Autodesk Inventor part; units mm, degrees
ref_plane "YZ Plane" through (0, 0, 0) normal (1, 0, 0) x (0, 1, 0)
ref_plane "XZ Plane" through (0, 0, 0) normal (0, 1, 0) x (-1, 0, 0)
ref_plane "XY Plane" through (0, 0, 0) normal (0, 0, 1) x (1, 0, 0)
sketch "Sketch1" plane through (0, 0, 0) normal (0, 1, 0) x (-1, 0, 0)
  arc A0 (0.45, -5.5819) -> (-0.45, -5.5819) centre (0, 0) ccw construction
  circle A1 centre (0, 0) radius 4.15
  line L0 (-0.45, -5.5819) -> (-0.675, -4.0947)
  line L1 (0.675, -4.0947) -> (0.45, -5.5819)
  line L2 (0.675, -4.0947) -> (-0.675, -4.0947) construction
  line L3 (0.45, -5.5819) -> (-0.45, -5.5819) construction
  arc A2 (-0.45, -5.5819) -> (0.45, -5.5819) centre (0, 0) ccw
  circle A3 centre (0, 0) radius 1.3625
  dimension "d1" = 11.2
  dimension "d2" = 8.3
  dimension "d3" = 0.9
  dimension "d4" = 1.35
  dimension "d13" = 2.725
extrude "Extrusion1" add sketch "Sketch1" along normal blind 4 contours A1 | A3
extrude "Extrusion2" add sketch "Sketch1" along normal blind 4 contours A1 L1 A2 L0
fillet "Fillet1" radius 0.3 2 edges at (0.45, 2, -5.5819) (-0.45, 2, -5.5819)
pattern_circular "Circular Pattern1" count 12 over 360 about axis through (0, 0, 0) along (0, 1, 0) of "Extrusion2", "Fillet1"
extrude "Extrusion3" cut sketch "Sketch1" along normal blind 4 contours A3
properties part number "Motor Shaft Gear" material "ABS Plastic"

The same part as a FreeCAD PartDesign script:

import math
import FreeCAD as App
import Part
import Sketcher

V = App.Vector


def edges_at(feature, points):
    """Names of the edges that pass closest to the given points."""
    edges = feature.Shape.Edges
    near = lambda p: min(range(len(edges)), key=lambda i: edges[i].distToShape(Part.Vertex(*p))[0])
    return sorted({f"Edge{near(p) + 1}" for p in points})

doc = App.newDocument("Part")
body = doc.addObject("PartDesign::Body", "Body")

sketch1 = body.newObject("Sketcher::SketchObject", "Sketch")
sketch1.AttachmentSupport = (doc.getObject("XZ_Plane"), [""])
sketch1.MapMode = "FlatFace"
sketch1.addGeometry(Part.Circle(V(0, 0, 0), V(0, 0, 1), 4.15), False)
sketch1.addConstraint([
    Sketcher.Constraint("Coincident", 0, 3, -1, 1),
    Sketcher.Constraint("Diameter", 0, 8.3),
])
pad1 = body.newObject("PartDesign::Pad", "Pad")
pad1.Profile = sketch1
pad1.Length = 4
pad1.Reversed = True

sketch2 = body.newObject("Sketcher::SketchObject", "Sketch001")
sketch2.AttachmentSupport = (doc.getObject("XZ_Plane"), [""])
sketch2.MapMode = "FlatFace"
sketch2.addGeometry([
    Part.ArcOfCircle(Part.Circle(V(0, 0, 0), V(0, 0, 1), 4.15), math.radians(-99.360864), math.radians(-80.639136)),
    Part.LineSegment(V(0.675, -4.0947, 0), V(0.45, -5.5819, 0)),
    Part.ArcOfCircle(Part.Circle(V(0, 0, 0), V(0, 0, 1), 5.60001), math.radians(-94.609087), math.radians(-85.390913)),
    Part.LineSegment(V(-0.45, -5.5819, 0), V(-0.675, -4.0947, 0)),
], False)
sketch2.addConstraint([
    Sketcher.Constraint("Coincident", 0, 2, 1, 1),
    Sketcher.Constraint("Coincident", 1, 2, 2, 2),
    Sketcher.Constraint("Coincident", 2, 1, 3, 1),
    Sketcher.Constraint("Coincident", 3, 2, 0, 1),
    Sketcher.Constraint("Coincident", 0, 3, -1, 1),
    Sketcher.Constraint("Coincident", 2, 3, -1, 1),
    Sketcher.Constraint("Horizontal", 1, 2, 2, 1),
    Sketcher.Constraint("Horizontal", 0, 2, 3, 2),
    Sketcher.Constraint("Radius", 2, 5.6),
    Sketcher.Constraint("Radius", 0, 4.15),
    Sketcher.Constraint("DistanceX", 2, 1, 1, 2, 0.9),
    Sketcher.Constraint("DistanceX", 3, 2, 0, 2, 1.35),
])
pad2 = body.newObject("PartDesign::Pad", "Pad001")
pad2.Profile = sketch2
pad2.Length = 4
pad2.Reversed = True
doc.recompute()

fillet = body.newObject("PartDesign::Fillet", "Fillet")
fillet.Base = (pad2, edges_at(pad2, [(0.45, 2, -5.582), (-0.45, 2, -5.582)]))
fillet.Radius = 0.3
doc.recompute()

polarpattern = body.newObject("PartDesign::PolarPattern", "PolarPattern")
polarpattern.Originals = [pad2, fillet]
polarpattern.Axis = (doc.getObject("Y_Axis"), [""])
polarpattern.Angle = 360
polarpattern.Occurrences = 12
body.Tip = polarpattern

sketch3 = body.newObject("Sketcher::SketchObject", "Sketch002")
sketch3.AttachmentSupport = (doc.getObject("XZ_Plane"), [""])
sketch3.MapMode = "FlatFace"
sketch3.addGeometry(Part.Circle(V(0, 0, 0), V(0, 0, 1), 1.3625), False)
sketch3.addConstraint([
    Sketcher.Constraint("Coincident", 0, 3, -1, 1),
    Sketcher.Constraint("Diameter", 0, 2.725),
])
pocket1 = body.newObject("PartDesign::Pocket", "Pocket")
pocket1.Profile = sketch3
pocket1.Length = 4

doc.recompute()
